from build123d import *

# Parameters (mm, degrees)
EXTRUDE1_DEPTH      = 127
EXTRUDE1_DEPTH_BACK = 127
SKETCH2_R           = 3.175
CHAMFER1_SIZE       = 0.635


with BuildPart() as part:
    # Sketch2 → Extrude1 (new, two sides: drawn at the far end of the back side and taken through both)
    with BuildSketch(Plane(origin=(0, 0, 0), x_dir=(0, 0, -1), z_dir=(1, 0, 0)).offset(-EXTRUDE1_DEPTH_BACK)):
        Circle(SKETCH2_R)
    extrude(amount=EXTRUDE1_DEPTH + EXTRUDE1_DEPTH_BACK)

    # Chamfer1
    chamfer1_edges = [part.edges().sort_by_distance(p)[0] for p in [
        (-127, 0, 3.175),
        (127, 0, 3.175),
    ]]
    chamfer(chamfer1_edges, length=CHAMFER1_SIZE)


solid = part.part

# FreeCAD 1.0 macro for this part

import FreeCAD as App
import Part
import Sketcher
from FreeCAD import Vector
Q = App.Units.Quantity


def edges_at(feature, points):
    """Names of the edges that pass closest to the given points."""
    edges = feature.Shape.Edges
    near = lambda p: min(range(len(edges)), key=lambda i: edges[i].distToShape(Part.Vertex(*p))[0])
    return sorted({f"Edge{near(p) + 1}" for p in points})

doc = App.newDocument("Part")
body = doc.addObject("PartDesign::Body", "Body")

# Sketch on YZ plane
sketch1 = body.newObject("Sketcher::SketchObject", "Sketch")
sketch1.AttachmentSupport = (doc.getObject("YZ_Plane"), [""])
sketch1.MapMode = "FlatFace"
sketch1.addGeometry(Part.Circle(Vector(0, 0, 0), Vector(0, 0, 1), 3.175), False)
sketch1.addConstraint([
    Sketcher.Constraint("Coincident", 0, 3, -1, 1),
    Sketcher.Constraint("Diameter", 0, Q("0.25 in")),
])
pad1 = body.newObject("PartDesign::Pad", "Pad")
pad1.Profile = sketch1
pad1.Type = "TwoLengths"
pad1.Length = Q("5 in")
pad1.Length2 = Q("5 in")
doc.recompute()

chamfer = body.newObject("PartDesign::Chamfer", "Chamfer")
chamfer.Base = (pad1, edges_at(pad1, [(-127, 0, 3.175), (127, 0, 3.175)]))
chamfer.Size = Q("0.025 in")

doc.recompute()
